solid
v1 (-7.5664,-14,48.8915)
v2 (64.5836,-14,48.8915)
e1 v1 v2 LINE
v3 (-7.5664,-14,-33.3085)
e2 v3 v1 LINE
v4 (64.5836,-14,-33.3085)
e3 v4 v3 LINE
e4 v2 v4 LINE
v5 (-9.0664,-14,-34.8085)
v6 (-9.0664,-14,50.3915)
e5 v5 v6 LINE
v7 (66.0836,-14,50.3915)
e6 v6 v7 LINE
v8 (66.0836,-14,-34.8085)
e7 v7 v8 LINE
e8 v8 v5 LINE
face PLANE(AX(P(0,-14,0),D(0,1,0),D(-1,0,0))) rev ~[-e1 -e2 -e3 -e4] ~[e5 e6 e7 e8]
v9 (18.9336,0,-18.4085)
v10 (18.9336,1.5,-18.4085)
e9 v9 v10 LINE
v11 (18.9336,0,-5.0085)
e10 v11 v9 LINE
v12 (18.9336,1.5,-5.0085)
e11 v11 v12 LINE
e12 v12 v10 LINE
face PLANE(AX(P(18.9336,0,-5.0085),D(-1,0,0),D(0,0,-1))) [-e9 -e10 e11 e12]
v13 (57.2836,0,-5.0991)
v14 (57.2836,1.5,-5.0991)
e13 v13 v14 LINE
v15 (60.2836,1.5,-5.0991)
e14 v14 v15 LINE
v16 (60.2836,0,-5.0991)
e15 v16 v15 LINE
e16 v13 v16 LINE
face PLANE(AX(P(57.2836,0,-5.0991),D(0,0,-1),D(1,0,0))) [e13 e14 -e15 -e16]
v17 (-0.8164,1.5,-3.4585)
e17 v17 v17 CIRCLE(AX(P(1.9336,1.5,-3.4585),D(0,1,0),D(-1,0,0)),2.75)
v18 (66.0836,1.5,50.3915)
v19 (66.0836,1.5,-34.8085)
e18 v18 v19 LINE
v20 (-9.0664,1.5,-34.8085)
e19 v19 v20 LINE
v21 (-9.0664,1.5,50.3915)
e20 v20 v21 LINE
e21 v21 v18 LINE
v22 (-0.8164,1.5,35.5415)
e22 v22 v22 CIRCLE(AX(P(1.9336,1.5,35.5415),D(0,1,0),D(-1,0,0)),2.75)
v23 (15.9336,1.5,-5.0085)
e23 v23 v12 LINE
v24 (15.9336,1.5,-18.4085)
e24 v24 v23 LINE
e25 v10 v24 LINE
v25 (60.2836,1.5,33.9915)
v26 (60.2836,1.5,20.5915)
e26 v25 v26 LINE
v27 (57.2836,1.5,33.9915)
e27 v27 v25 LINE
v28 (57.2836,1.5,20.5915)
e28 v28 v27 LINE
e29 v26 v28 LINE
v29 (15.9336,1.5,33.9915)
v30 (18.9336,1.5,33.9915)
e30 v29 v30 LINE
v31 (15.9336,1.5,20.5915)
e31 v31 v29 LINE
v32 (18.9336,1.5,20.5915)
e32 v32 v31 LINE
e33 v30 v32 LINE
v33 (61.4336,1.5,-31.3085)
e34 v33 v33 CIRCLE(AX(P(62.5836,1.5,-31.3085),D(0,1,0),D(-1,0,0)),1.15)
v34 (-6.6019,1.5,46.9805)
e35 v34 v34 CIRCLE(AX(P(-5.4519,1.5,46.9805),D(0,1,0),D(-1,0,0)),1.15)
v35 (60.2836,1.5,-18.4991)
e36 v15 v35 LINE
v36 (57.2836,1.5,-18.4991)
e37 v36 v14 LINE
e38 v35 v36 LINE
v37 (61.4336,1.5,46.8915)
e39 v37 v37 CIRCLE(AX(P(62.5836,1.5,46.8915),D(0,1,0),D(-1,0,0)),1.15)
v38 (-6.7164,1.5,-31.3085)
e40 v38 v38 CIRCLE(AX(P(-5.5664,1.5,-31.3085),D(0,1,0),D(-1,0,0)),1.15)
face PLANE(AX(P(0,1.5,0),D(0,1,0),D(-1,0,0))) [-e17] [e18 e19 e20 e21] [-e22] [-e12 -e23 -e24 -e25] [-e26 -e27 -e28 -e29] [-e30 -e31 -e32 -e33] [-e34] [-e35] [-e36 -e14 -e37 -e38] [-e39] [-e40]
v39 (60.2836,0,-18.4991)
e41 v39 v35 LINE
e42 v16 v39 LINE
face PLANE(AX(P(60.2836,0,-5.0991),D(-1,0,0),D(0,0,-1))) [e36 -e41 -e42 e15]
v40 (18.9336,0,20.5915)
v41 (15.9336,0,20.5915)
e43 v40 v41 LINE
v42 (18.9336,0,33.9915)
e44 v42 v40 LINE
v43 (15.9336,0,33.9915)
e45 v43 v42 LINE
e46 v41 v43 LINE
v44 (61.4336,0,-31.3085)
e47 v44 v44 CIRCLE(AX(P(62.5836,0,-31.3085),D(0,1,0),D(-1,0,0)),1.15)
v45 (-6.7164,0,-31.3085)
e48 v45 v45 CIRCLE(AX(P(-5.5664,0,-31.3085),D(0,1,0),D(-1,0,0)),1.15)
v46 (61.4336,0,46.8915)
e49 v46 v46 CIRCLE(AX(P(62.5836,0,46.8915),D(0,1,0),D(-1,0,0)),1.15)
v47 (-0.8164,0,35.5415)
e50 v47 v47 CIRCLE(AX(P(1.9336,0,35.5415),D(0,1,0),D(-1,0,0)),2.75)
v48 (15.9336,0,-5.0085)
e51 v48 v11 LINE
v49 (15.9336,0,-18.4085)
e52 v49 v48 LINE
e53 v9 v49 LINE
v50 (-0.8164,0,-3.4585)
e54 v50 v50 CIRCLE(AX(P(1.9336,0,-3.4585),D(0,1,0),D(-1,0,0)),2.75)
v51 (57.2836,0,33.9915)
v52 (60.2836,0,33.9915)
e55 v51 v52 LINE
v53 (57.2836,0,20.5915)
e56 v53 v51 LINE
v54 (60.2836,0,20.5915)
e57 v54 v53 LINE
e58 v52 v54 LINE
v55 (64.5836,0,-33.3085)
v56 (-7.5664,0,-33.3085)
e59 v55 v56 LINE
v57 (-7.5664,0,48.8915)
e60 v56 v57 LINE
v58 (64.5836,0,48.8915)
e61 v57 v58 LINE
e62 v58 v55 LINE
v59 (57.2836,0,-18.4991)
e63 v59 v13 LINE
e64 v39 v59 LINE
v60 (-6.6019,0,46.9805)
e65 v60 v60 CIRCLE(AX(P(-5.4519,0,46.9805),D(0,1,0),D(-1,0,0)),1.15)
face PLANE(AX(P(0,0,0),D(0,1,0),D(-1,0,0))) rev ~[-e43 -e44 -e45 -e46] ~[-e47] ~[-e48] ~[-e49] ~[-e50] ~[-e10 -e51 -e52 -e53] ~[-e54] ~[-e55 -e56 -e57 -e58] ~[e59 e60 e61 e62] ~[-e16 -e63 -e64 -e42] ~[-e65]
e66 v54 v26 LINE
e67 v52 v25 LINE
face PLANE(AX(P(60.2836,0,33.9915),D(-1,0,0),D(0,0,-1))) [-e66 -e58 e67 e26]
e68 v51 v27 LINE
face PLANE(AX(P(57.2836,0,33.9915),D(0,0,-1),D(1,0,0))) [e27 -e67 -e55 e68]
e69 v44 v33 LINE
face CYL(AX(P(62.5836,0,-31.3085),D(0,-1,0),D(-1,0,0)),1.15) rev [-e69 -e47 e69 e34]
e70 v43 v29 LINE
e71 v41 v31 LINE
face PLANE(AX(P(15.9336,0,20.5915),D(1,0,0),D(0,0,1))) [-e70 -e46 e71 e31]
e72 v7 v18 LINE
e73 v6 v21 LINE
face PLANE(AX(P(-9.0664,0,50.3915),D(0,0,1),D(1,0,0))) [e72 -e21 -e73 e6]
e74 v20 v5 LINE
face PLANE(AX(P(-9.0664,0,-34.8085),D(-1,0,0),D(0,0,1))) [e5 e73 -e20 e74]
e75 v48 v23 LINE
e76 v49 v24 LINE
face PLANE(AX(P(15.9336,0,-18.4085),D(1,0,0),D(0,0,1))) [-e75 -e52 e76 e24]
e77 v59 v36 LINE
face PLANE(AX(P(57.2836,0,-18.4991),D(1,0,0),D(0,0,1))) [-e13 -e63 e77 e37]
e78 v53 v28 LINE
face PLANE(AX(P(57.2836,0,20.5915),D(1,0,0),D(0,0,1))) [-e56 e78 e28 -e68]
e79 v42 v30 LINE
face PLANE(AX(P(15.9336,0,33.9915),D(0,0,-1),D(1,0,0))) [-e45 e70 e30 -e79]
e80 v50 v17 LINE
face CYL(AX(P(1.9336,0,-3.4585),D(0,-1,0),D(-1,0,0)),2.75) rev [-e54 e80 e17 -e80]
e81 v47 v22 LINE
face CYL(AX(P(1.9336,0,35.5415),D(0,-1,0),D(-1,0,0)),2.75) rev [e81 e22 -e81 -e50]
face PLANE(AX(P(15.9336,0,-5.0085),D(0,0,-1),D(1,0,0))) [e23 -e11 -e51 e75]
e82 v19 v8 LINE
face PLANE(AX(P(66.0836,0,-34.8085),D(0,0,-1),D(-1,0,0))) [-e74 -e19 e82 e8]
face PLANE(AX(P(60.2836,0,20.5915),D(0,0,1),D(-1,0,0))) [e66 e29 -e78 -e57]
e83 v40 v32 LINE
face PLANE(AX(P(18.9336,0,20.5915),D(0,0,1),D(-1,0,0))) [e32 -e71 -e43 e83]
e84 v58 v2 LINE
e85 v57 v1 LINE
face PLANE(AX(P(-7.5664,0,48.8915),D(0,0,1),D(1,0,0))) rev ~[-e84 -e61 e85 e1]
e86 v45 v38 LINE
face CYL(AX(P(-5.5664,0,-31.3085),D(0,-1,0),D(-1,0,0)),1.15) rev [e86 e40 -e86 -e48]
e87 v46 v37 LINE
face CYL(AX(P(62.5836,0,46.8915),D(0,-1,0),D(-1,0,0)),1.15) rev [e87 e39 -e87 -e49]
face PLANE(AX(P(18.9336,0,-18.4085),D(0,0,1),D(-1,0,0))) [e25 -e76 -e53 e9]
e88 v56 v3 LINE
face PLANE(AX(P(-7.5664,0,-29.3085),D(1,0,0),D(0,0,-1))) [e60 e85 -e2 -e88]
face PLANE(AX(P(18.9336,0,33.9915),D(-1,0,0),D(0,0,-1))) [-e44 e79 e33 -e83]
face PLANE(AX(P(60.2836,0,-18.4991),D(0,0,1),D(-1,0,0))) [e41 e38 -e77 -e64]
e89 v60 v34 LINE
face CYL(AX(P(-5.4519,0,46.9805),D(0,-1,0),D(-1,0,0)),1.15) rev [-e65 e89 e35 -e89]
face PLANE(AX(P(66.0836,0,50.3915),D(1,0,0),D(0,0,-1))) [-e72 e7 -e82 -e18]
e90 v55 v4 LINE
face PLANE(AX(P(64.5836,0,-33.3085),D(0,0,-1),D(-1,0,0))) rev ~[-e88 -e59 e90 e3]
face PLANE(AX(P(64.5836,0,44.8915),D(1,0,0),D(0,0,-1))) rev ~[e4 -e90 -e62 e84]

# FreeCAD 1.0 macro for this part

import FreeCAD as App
import Part
import Sketcher
from FreeCAD import Vector

doc = App.newDocument("Part")
body = doc.addObject("PartDesign::Body", "Body")

sketch1 = body.newObject("Sketcher::SketchObject", "Sketch")
sketch1.AttachmentSupport = (doc.getObject("XZ_Plane"), [""])
sketch1.MapMode = "FlatFace"
sketch1.addGeometry([
    Part.LineSegment(Vector(-9, -35, 0), Vector(-9, 50, 0)),
    Part.LineSegment(Vector(-9, 50, 0), Vector(66, 50, 0)),
    Part.LineSegment(Vector(66, 50, 0), Vector(66, -35, 0)),
    Part.LineSegment(Vector(66, -35, 0), Vector(-9, -35, 0)),
    Part.LineSegment(Vector(65, -33, 0), Vector(65, 49, 0)),
    Part.LineSegment(Vector(65, 49, 0), Vector(-8, 49, 0)),
    Part.LineSegment(Vector(-8, 49, 0), Vector(-8, -33, 0)),
    Part.LineSegment(Vector(-8, -33, 0), Vector(65, -33, 0)),
], False)
sketch1.addConstraint([
    Sketcher.Constraint("Coincident", 0, 2, 1, 1),
    Sketcher.Constraint("Coincident", 1, 2, 2, 1),
    Sketcher.Constraint("Coincident", 2, 2, 3, 1),
    Sketcher.Constraint("Coincident", 3, 2, 0, 1),
    Sketcher.Constraint("Coincident", 4, 2, 5, 1),
    Sketcher.Constraint("Coincident", 5, 2, 6, 1),
    Sketcher.Constraint("Coincident", 6, 2, 7, 1),
    Sketcher.Constraint("Coincident", 7, 2, 4, 1),
    Sketcher.Constraint("Vertical", 0),
    Sketcher.Constraint("Horizontal", 1),
    Sketcher.Constraint("Vertical", 2),
    Sketcher.Constraint("Horizontal", 3),
    Sketcher.Constraint("Vertical", 4),
    Sketcher.Constraint("Horizontal", 5),
    Sketcher.Constraint("Vertical", 6),
    Sketcher.Constraint("Horizontal", 7),
    Sketcher.Constraint("DistanceY", 4, 1, 4, 2, 82.2),
    Sketcher.Constraint("DistanceX", 5, 2, 5, 1, 72.15),
    Sketcher.Constraint("DistanceX", 4, 2, 1, 2, 1.5),
    Sketcher.Constraint("DistanceY", 4, 2, 1, 2, 1.5),
    Sketcher.Constraint("DistanceX", 0, 2, 5, 2, 1.5),
    Sketcher.Constraint("DistanceY", 3, 2, 6, 2, 1.5),
    Sketcher.Constraint("DistanceX", 0, 2, -1, 1, 9.0664),
    Sketcher.Constraint("DistanceY", -1, 1, 0, 2, 50.3915),
])
pad1 = body.newObject("PartDesign::Pad", "Pad")
pad1.Profile = sketch1
pad1.Length = 14

sketch2 = body.newObject("Sketcher::SketchObject", "Sketch001")
sketch2.AttachmentSupport = (doc.getObject("XZ_Plane"), [""])
sketch2.MapMode = "FlatFace"
sketch2.addGeometry([
    Part.LineSegment(Vector(-9.1, -34.8, 0), Vector(-9.1, 50.4, 0)),
    Part.LineSegment(Vector(-9.1, 50.4, 0), Vector(66.1, 50.4, 0)),
    Part.LineSegment(Vector(66.1, 50.4, 0), Vector(66.1, -34.8, 0)),
    Part.LineSegment(Vector(66.1, -34.8, 0), Vector(-9.1, -34.8, 0)),
    Part.Circle(Vector(62.6, -31.3, 0), Vector(0, 0, 1), 1.1),
    Part.LineSegment(Vector(60.3, -5.1, 0), Vector(57.3, -5.1, 0)),
    Part.LineSegment(Vector(57.3, -5.1, 0), Vector(57.3, -18.5, 0)),
    Part.LineSegment(Vector(57.3, -18.5, 0), Vector(60.3, -18.5, 0)),
    Part.LineSegment(Vector(60.3, -18.5, 0), Vector(60.3, -5.1, 0)),
    Part.Circle(Vector(-5.6, -31.3, 0), Vector(0, 0, 1), 1.1),
    Part.LineSegment(Vector(18.9, -5, 0), Vector(15.9, -5, 0)),
    Part.LineSegment(Vector(15.9, -5, 0), Vector(15.9, -18.4, 0)),
    Part.LineSegment(Vector(15.9, -18.4, 0), Vector(18.9, -18.4, 0)),
    Part.LineSegment(Vector(18.9, -18.4, 0), Vector(18.9, -5, 0)),
    Part.Circle(Vector(1.9, -3.5, 0), Vector(0, 0, 1), 2.8),
    Part.LineSegment(Vector(60.3, 34, 0), Vector(57.3, 34, 0)),
    Part.LineSegment(Vector(57.3, 34, 0), Vector(57.3, 20.6, 0)),
    Part.LineSegment(Vector(57.3, 20.6, 0), Vector(60.3, 20.6, 0)),
    Part.LineSegment(Vector(60.3, 20.6, 0), Vector(60.3, 34, 0)),
    Part.Circle(Vector(62.6, 46.9, 0), Vector(0, 0, 1), 1.1),
    Part.LineSegment(Vector(18.9, 34, 0), Vector(15.9, 34, 0)),
    Part.LineSegment(Vector(15.9, 34, 0), Vector(15.9, 20.6, 0)),
    Part.LineSegment(Vector(15.9, 20.6, 0), Vector(18.9, 20.6, 0)),
    Part.LineSegment(Vector(18.9, 20.6, 0), Vector(18.9, 34, 0)),
    Part.Circle(Vector(1.9, 35.5, 0), Vector(0, 0, 1), 2.8),
    Part.Circle(Vector(-5.5, 47, 0), Vector(0, 0, 1), 1.1),
], False)
sketch2.addConstraint([
    Sketcher.Constraint("Coincident", 0, 2, 1, 1),
    Sketcher.Constraint("Coincident", 1, 2, 2, 1),
    Sketcher.Constraint("Coincident", 2, 2, 3, 1),
    Sketcher.Constraint("Coincident", 3, 2, 0, 1),
    Sketcher.Constraint("Coincident", 5, 2, 6, 1),
    Sketcher.Constraint("Coincident", 6, 2, 7, 1),
    Sketcher.Constraint("Coincident", 7, 2, 8, 1),
    Sketcher.Constraint("Coincident", 8, 2, 5, 1),
    Sketcher.Constraint("Coincident", 10, 2, 11, 1),
    Sketcher.Constraint("Coincident", 11, 2, 12, 1),
    Sketcher.Constraint("Coincident", 12, 2, 13, 1),
    Sketcher.Constraint("Coincident", 13, 2, 10, 1),
    Sketcher.Constraint("Coincident", 15, 2, 16, 1),
    Sketcher.Constraint("Coincident", 16, 2, 17, 1),
    Sketcher.Constraint("Coincident", 17, 2, 18, 1),
    Sketcher.Constraint("Coincident", 18, 2, 15, 1),
    Sketcher.Constraint("Coincident", 20, 2, 21, 1),
    Sketcher.Constraint("Coincident", 21, 2, 22, 1),
    Sketcher.Constraint("Coincident", 22, 2, 23, 1),
    Sketcher.Constraint("Coincident", 23, 2, 20, 1),
    Sketcher.Constraint("Vertical", 0),
    Sketcher.Constraint("Horizontal", 1),
    Sketcher.Constraint("Vertical", 2),
    Sketcher.Constraint("Horizontal", 3),
    Sketcher.Constraint("Horizontal", 5),
    Sketcher.Constraint("Vertical", 6),
    Sketcher.Constraint("Horizontal", 7),
    Sketcher.Constraint("Vertical", 8),
    Sketcher.Constraint("Horizontal", 10),
    Sketcher.Constraint("Vertical", 11),
    Sketcher.Constraint("Horizontal", 12),
    Sketcher.Constraint("Vertical", 13),
    Sketcher.Constraint("Horizontal", 15),
    Sketcher.Constraint("Vertical", 16),
    Sketcher.Constraint("Horizontal", 17),
    Sketcher.Constraint("Vertical", 18),
    Sketcher.Constraint("Horizontal", 20),
    Sketcher.Constraint("Vertical", 21),
    Sketcher.Constraint("Horizontal", 22),
    Sketcher.Constraint("Vertical", 23),
    Sketcher.Constraint("Equal", 4, 9),
    Sketcher.Constraint("Equal", 9, 19),
    Sketcher.Constraint("Equal", 14, 24),
    Sketcher.Constraint("Equal", 19, 25),
    Sketcher.Constraint("Horizontal", 4, 3, 9, 3),
    Sketcher.Constraint("Horizontal", 18, 2, 20, 2),
    Sketcher.Constraint("Horizontal", 17, 2, 21, 2),
    Sketcher.Constraint("Vertical", 4, 3, 19, 3),
    Sketcher.Constraint("Vertical", 14, 3, 24, 3),
    Sketcher.Constraint("Vertical", 6, 2, 15, 2),
    Sketcher.Constraint("Vertical", 8, 2, 17, 2),
    Sketcher.Constraint("Vertical", 11, 2, 20, 2),
    Sketcher.Constraint("Vertical", 13, 2, 22, 2),
    Sketcher.Constraint("Equal", 7, 10),
    Sketcher.Constraint("Equal", 8, 11),
    Sketcher.Constraint("Equal", 13, 16),
    Sketcher.Constraint("Diameter", 4, 2.3),
    Sketcher.Constraint("Diameter", 14, 5.5),
    Sketcher.Constraint("DistanceX", 5, 2, 5, 1, 3.0),
    Sketcher.Constraint("DistanceY", 6, 2, 6, 1, 13.4),
    Sketcher.Constraint("DistanceX", 7, 2, 4, 3, 2.3),
    Sketcher.Constraint("DistanceY", 0, 1, 0, 2, 85.2),
    Sketcher.Constraint("DistanceY", 14, 3, 24, 3, 39.0),
    Sketcher.Constraint("DistanceX", 0, 2, 24, 3, 11.0),
    Sketcher.Constraint("DistanceX", 14, 3, 10, 2, 14.0),
    Sketcher.Constraint("DistanceY", 10, 2, 20, 2, 39.0),
    Sketcher.Constraint("DistanceX", 1, 1, 1, 2, 75.15),
    Sketcher.Constraint("DistanceX", 9, 3, 14, 3, 7.5),
    Sketcher.Constraint("DistanceY", 4, 3, 19, 3, 78.2),
    Sketcher.Constraint("DistanceY", 19, 3, 0, 2, 3.5),
    Sketcher.Constraint("DistanceX", 19, 3, 1, 2, 3.5),
    Sketcher.Constraint("DistanceY", 9, 3, 10, 2, 26.3),
    Sketcher.Constraint("DistanceY", 9, 3, 14, 3, 27.85),
    Sketcher.Constraint("DistanceX", 25, 3, -1, 1, 5.452),
    Sketcher.Constraint("DistanceY", 5, 2, -1, 1, 5.099),
    Sketcher.Constraint("DistanceY", 24, 3, 25, 3, 11.439),
    Sketcher.Constraint("DistanceX", -1, 1, 4, 3, 62.5836),
    Sketcher.Constraint("DistanceY", 4, 3, -1, 1, 31.3085),
])
pad2 = body.newObject("PartDesign::Pad", "Pad001")
pad2.Profile = sketch2
pad2.Length = 1.5
pad2.Reversed = True

doc.recompute()
